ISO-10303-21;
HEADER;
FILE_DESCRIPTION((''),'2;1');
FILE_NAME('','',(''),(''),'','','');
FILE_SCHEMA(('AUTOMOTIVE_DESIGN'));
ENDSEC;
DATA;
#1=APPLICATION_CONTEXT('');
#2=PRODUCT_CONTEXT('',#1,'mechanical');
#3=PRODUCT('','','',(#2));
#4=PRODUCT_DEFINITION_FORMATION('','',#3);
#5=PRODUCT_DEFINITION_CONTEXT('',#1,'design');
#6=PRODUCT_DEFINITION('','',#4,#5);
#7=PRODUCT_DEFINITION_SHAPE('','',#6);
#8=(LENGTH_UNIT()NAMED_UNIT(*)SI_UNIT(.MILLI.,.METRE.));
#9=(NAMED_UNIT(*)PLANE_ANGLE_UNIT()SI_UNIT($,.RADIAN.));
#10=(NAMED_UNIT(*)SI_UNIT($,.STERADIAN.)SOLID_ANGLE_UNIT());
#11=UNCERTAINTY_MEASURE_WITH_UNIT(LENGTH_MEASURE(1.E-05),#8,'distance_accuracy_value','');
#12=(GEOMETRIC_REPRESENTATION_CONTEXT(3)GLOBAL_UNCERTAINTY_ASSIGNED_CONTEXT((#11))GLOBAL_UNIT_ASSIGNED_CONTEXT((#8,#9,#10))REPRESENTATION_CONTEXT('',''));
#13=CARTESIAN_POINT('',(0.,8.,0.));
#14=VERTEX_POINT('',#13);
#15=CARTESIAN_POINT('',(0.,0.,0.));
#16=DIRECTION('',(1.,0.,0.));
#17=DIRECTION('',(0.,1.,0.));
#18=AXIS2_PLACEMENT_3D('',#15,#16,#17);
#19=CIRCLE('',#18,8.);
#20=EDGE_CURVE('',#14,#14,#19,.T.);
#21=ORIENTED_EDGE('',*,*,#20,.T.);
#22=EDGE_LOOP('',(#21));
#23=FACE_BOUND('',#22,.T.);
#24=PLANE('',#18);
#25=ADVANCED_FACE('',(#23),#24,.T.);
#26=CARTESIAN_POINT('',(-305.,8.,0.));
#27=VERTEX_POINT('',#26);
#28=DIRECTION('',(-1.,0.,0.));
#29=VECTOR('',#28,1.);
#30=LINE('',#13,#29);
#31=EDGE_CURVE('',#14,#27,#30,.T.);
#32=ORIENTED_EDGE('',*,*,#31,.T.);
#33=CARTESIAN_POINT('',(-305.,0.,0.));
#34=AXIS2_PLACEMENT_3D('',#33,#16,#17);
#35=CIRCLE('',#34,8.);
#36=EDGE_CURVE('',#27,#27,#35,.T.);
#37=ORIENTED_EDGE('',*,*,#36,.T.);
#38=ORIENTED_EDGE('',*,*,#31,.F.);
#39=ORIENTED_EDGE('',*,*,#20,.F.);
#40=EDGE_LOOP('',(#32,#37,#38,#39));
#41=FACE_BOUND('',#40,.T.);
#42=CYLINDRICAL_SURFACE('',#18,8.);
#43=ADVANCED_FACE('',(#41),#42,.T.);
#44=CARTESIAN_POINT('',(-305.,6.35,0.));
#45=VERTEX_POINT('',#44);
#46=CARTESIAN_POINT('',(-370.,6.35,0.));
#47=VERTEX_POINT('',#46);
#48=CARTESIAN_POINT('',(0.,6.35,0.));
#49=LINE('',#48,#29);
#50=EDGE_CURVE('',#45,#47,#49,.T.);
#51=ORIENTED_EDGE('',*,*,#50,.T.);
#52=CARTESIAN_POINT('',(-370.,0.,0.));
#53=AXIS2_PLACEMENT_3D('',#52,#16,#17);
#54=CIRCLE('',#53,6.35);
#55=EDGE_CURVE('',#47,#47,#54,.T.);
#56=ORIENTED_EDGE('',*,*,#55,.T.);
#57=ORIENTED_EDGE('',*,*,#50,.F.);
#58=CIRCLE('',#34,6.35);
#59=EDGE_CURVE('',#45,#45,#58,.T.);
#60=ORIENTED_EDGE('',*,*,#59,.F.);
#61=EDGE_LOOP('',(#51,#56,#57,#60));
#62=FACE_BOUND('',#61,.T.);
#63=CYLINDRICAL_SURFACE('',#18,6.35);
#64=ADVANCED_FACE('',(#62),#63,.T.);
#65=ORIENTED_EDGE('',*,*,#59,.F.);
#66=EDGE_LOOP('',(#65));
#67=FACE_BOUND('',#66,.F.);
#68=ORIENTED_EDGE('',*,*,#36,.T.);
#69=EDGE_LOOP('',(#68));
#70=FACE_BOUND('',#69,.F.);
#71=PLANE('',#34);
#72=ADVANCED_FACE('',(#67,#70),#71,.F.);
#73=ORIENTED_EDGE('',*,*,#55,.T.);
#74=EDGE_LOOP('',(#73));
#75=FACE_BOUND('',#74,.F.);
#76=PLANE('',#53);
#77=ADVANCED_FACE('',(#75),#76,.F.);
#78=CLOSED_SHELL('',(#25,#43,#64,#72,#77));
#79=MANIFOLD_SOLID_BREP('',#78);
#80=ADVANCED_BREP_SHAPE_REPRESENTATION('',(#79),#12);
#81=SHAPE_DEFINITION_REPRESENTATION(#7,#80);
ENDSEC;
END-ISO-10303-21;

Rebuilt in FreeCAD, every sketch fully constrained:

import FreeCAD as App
import Part
import Sketcher
from FreeCAD import Vector
Q = App.Units.Quantity

doc = App.newDocument("Part")
body = doc.addObject("PartDesign::Body", "Body")

# Sketch on YZ plane
sketch1 = body.newObject("Sketcher::SketchObject", "Sketch")
sketch1.AttachmentSupport = (doc.getObject("YZ_Plane"), [""])
sketch1.MapMode = "FlatFace"
sketch1.addGeometry(Part.Circle(Vector(0, 0, 0), Vector(0, 0, 1), 6), False)
sketch1.addConstraint([
    Sketcher.Constraint("Coincident", 0, 3, -1, 1),
    Sketcher.Constraint("Diameter", 0, Q("12.7 mm")),
])
pad1 = body.newObject("PartDesign::Pad", "Pad")
pad1.Profile = sketch1
pad1.Length = 370
pad1.Reversed = True

# Sketch on YZ plane
sketch2 = body.newObject("Sketcher::SketchObject", "Sketch001")
sketch2.AttachmentSupport = (doc.getObject("YZ_Plane"), [""])
sketch2.MapMode = "FlatFace"
sketch2.addGeometry([
    Part.Circle(Vector(0, 0, 0), Vector(0, 0, 1), 8),
    Part.Circle(Vector(0, 0, 0), Vector(0, 0, 1), 6),
], False)
sketch2.addConstraint([
    Sketcher.Constraint("Coincident", 0, 3, -1, 1),
    Sketcher.Constraint("Coincident", 1, 3, -1, 1),
    Sketcher.Constraint("Diameter", 0, Q("16 mm")),
    Sketcher.Constraint("Diameter", 1, Q("12.7 mm")),
])
pad2 = body.newObject("PartDesign::Pad", "Pad001")
pad2.Profile = sketch2
pad2.Length = 305
pad2.Reversed = True

doc.recompute()
